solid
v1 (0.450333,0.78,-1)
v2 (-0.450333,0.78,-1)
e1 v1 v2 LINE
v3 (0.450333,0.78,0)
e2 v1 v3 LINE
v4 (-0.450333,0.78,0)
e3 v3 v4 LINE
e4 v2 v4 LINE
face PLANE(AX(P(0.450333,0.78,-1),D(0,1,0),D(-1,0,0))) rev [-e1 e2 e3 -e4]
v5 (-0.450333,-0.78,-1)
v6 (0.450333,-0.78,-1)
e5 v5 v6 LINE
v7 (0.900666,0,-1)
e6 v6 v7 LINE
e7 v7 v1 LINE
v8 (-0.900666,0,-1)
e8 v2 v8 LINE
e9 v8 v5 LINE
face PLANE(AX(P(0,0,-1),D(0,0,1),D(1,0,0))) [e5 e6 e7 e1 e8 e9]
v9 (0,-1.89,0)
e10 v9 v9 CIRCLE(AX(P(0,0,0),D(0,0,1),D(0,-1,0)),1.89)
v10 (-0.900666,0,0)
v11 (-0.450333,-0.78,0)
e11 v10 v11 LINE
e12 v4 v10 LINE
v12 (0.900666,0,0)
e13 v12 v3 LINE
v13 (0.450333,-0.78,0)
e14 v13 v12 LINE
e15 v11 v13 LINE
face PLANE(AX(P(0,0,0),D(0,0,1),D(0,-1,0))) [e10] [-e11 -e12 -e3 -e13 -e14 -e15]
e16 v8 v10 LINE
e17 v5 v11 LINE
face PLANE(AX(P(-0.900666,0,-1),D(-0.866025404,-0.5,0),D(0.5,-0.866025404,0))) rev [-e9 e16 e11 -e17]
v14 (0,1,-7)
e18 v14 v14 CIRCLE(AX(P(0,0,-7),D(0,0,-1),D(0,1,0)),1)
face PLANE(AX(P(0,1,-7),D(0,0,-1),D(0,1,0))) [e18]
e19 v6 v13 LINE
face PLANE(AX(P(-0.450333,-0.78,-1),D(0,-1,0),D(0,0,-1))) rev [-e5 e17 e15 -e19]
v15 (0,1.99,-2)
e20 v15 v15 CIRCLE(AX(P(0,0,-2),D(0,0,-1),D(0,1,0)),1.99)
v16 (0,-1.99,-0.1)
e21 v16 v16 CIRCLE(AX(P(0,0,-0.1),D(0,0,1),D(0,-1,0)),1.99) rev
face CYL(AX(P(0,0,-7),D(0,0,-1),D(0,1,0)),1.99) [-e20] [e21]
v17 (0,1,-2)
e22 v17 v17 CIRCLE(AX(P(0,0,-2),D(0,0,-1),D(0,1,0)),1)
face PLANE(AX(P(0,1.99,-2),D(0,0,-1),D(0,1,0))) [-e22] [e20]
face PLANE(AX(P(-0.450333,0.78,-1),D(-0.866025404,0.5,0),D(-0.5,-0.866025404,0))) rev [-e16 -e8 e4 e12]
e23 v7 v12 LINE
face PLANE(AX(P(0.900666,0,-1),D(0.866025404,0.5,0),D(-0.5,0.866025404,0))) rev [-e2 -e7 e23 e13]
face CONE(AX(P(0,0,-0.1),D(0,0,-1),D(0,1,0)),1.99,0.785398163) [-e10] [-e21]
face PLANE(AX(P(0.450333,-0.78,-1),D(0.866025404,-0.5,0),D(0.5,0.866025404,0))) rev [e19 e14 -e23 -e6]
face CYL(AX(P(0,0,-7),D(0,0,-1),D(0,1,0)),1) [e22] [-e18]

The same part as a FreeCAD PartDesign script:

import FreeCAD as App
import Part
import Sketcher
Q = App.Units.Quantity


def edges_at(feature, points):
    """Names of the edges that pass closest to the given points."""
    edges = feature.Shape.Edges
    near = lambda p: min(range(len(edges)), key=lambda i: edges[i].distToShape(Part.Vertex(*p))[0])
    return sorted({f"Edge{near(p) + 1}" for p in points})


def add_polygon(sketch, points):
    """Adds a closed chain of lines whose ends are joined by coincident constraints."""
    first, n = sketch.GeometryCount, len(points)
    for a, b in zip(points, points[1:] + points[:1]):
        sketch.addGeometry(Part.LineSegment(App.Vector(*a, 0), App.Vector(*b, 0)), False)
    for i in range(n):
        sketch.addConstraint(Sketcher.Constraint("Coincident", first + i, 2, first + (i + 1) % n, 1))

doc = App.newDocument("Part")
params = doc.addObject("Spreadsheet::Sheet", "Params")
for row, (alias, value) in enumerate([
    ("sketch1_width", "1 mm"),
    ("sketch1_height", "7 mm"),
    ("sketch1_height2", "5 mm"),
    ("sketch1_width2", "1.99 mm"),
    ("revolution_angle", "360 deg"),
    ("pocket1_length", "1 mm"),
    ("chamfer_size", "0.1 mm"),
], start=1):
    params.set(f"A{row}", alias)
    params.set(f"B{row}", "=" + value)
    params.setAlias(f"B{row}", alias)

body = doc.addObject("PartDesign::Body", "Body")

# Sketch on YZ plane
sketch1 = body.newObject("Sketcher::SketchObject", "Sketch")
sketch1.AttachmentSupport = (doc.getObject("YZ_Plane"), [""])
sketch1.MapMode = "FlatFace"
add_polygon(sketch1, [(1.99, 0), (0, 0), (0, -7), (1, -7), (1, -2), (1.99, -2)])  # lines 0-5
sketch1.addConstraint([
    Sketcher.Constraint("Horizontal", 0),
    Sketcher.Constraint("Vertical", 1),
    Sketcher.Constraint("Horizontal", 2),
    Sketcher.Constraint("Vertical", 3),
    Sketcher.Constraint("Horizontal", 4),
    Sketcher.Constraint("Vertical", 5),
    Sketcher.Constraint("Coincident", 0, 2, -1, 1),
    Sketcher.Constraint("DistanceX", 2, 1, 2, 2, 1.0),
    Sketcher.Constraint("DistanceY", 1, 2, 1, 1, 7.0),
    Sketcher.Constraint("DistanceY", 3, 1, 3, 2, 5.0),
    Sketcher.Constraint("DistanceX", 0, 2, 0, 1, 1.99),
])
sketch1.setExpression("Constraints[13]", "Params.sketch1_width")
sketch1.setExpression("Constraints[14]", "Params.sketch1_height")
sketch1.setExpression("Constraints[15]", "Params.sketch1_height2")
sketch1.setExpression("Constraints[16]", "Params.sketch1_width2")
revolution = body.newObject("PartDesign::Revolution", "Revolution")
revolution.Profile = sketch1
revolution.ReferenceAxis = (sketch1, ["V_Axis"])
revolution.setExpression("Angle", "Params.revolution_angle")

# Sketch on XY plane
sketch2 = body.newObject("Sketcher::SketchObject", "Sketch001")
sketch2.AttachmentSupport = (doc.getObject("XY_Plane"), [""])
sketch2.MapMode = "FlatFace"
add_polygon(sketch2, [(0.450333, 0.78), (-0.450333, 0.78), (-0.900666, 0), (-0.450333, -0.78), (0.450333, -0.78), (0.900666, 0)])  # lines 0-5
sketch2.addConstraint([
    Sketcher.Constraint("Horizontal", 0),
    Sketcher.Constraint("Horizontal", 3),
    Sketcher.Constraint("Symmetric", 0, 2, 3, 2, -1, 1),
    Sketcher.Constraint("Symmetric", 1, 2, 4, 2, -1, 1),
    Sketcher.Constraint("PointOnObject", 1, 2, -1),
    Sketcher.Constraint("Parallel", 2, 5),
    Sketcher.Constraint("Vertical", 0, 2, 2, 2),
    Sketcher.Constraint("Angle", 1, Q("-120 deg")),
    Sketcher.Constraint("DistanceY", -1, 1, 0, 2, 0.78),
    Sketcher.Constraint("DistanceX", 1, 2, 3, 2, 1.351),
])
pocket1 = body.newObject("PartDesign::Pocket", "Pocket")
pocket1.Profile = sketch2
pocket1.setExpression("Length", "Params.pocket1_length")
doc.recompute()

chamfer = body.newObject("PartDesign::Chamfer", "Chamfer")
chamfer.Base = (pocket1, edges_at(pocket1, [(0, -1.99, 0)]))
chamfer.setExpression("Size", "Params.chamfer_size")

doc.recompute()
